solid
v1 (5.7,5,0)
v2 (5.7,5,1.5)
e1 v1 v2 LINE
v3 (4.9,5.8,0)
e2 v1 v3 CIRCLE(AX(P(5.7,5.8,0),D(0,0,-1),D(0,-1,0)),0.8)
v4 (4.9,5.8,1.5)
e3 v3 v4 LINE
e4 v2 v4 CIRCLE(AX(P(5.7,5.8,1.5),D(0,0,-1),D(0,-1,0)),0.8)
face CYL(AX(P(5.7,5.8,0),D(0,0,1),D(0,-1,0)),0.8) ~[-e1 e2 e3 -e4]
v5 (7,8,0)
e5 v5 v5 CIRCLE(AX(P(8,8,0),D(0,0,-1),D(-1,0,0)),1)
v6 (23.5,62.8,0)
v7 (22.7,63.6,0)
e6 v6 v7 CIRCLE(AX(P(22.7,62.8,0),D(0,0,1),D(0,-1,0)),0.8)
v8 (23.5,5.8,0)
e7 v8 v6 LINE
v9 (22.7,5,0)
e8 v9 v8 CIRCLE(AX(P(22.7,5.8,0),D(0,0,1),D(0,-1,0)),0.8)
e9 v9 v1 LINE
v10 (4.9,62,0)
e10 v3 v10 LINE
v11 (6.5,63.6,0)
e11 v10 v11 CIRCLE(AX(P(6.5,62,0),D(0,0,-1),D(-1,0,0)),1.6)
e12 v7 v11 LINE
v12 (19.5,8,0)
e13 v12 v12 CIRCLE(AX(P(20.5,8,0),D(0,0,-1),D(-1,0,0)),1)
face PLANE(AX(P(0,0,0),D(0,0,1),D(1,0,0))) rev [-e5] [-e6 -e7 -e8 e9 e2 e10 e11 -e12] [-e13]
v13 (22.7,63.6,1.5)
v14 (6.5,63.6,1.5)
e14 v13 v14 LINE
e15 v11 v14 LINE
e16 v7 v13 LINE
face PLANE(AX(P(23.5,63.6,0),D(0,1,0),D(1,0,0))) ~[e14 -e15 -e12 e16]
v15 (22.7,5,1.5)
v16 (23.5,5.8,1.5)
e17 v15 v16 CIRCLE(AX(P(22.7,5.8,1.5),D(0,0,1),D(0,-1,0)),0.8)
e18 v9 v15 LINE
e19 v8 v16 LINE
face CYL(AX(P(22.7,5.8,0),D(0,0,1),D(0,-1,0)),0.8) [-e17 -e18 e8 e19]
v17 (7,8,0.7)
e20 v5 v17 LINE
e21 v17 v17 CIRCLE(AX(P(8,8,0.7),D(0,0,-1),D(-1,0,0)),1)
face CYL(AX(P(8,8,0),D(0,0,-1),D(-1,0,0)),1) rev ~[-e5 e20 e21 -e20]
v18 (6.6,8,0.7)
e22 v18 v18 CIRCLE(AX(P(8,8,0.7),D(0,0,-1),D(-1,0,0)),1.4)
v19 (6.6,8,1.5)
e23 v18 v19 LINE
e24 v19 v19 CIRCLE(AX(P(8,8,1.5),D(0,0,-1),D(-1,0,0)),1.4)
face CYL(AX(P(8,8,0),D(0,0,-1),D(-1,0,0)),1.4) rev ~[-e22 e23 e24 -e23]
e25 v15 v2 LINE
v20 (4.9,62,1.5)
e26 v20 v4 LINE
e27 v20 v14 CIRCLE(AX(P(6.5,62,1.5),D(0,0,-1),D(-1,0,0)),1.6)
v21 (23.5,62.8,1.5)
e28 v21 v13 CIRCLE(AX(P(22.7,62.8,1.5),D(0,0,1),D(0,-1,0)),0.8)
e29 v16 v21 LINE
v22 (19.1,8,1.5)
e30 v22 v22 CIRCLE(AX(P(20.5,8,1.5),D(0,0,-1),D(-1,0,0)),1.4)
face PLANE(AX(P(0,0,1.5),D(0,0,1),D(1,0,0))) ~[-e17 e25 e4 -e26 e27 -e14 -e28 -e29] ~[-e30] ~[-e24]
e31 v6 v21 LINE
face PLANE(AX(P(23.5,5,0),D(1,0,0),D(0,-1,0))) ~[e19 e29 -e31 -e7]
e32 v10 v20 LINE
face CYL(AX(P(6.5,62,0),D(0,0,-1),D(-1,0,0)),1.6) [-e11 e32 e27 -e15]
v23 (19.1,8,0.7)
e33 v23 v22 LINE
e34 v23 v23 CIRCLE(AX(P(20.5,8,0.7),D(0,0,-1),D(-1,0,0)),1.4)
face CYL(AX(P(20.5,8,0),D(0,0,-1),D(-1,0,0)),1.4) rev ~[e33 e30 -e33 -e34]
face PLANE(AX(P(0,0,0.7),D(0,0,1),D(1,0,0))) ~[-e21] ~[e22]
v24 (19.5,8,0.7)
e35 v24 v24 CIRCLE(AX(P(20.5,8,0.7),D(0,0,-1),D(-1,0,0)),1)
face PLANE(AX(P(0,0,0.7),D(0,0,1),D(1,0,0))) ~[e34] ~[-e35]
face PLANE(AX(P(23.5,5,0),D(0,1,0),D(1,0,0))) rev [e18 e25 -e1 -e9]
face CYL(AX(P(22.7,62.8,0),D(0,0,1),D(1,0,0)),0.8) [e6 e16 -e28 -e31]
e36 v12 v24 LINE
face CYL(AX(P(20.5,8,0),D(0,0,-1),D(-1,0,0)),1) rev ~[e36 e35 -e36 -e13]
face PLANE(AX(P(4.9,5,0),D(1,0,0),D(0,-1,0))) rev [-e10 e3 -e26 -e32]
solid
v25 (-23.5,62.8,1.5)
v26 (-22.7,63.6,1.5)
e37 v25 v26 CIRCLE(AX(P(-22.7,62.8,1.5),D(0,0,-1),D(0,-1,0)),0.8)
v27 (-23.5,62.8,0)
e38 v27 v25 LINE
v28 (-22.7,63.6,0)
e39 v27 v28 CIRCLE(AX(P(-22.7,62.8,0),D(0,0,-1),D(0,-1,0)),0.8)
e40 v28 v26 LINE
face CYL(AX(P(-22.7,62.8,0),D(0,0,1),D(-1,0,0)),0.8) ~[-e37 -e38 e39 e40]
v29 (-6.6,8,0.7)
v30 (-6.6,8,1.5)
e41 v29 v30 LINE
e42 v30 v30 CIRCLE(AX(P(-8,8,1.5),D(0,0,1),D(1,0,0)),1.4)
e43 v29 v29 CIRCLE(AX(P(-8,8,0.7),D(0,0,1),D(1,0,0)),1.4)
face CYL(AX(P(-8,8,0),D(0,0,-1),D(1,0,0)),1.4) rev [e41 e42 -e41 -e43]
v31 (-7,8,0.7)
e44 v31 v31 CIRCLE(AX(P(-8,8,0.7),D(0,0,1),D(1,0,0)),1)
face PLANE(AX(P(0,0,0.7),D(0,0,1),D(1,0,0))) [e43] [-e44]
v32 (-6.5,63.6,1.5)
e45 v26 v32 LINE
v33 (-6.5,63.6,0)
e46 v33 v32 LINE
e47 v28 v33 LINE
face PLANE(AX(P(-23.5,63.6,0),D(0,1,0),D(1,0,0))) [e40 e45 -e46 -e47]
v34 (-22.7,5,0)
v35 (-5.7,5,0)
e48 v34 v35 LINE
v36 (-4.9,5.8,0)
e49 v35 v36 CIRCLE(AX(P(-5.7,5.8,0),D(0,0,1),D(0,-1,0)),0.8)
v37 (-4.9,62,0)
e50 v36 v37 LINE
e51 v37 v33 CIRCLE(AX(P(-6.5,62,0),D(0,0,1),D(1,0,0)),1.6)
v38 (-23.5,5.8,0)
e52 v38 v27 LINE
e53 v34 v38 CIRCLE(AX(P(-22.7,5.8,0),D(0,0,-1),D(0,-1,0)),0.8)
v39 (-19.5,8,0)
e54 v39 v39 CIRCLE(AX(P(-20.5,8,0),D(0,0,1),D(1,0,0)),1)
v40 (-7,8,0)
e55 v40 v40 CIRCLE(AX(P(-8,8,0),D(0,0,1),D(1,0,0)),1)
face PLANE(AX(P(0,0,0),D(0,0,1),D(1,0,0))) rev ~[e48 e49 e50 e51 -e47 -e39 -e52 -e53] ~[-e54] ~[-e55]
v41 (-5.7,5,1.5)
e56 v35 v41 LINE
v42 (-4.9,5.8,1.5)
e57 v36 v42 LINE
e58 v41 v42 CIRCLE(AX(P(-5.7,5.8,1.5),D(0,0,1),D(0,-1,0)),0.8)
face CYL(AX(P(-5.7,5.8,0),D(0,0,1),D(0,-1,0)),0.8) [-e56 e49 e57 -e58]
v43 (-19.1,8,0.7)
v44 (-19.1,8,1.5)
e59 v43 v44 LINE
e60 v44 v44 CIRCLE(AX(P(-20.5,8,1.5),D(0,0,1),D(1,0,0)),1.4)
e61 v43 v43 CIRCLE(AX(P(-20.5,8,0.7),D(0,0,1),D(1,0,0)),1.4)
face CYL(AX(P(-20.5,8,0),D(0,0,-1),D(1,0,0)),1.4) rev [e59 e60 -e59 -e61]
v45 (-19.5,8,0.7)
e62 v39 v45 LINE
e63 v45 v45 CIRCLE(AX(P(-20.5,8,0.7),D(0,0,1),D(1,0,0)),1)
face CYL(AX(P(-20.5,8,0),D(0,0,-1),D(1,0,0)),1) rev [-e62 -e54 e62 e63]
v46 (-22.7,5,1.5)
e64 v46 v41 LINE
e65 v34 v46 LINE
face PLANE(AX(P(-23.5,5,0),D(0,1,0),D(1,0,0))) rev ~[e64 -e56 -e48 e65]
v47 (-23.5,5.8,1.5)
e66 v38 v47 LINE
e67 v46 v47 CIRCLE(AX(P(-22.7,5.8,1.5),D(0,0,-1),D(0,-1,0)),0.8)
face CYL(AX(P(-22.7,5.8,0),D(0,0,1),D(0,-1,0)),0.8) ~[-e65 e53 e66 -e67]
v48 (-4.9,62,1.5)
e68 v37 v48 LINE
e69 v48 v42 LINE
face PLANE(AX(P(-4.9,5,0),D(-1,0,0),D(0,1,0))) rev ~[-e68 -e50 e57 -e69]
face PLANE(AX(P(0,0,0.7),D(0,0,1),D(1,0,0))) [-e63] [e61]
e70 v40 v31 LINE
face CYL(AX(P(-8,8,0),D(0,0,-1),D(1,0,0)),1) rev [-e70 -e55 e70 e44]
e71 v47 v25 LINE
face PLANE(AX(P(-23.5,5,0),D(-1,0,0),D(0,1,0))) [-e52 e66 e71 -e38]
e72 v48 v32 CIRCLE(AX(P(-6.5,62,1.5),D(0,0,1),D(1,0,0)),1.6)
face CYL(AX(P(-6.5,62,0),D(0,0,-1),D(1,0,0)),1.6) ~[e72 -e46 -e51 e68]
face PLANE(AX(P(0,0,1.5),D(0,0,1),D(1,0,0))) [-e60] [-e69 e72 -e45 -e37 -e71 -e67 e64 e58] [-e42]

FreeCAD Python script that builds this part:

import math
import FreeCAD as App
import Part
import Sketcher

V = App.Vector


def edges_at(feature, points):
    """Names of the edges that pass closest to the given points."""
    edges = feature.Shape.Edges
    near = lambda p: min(range(len(edges)), key=lambda i: edges[i].distToShape(Part.Vertex(*p))[0])
    return sorted({f"Edge{near(p) + 1}" for p in points})

doc = App.newDocument("Part")
body = doc.addObject("PartDesign::Body", "Body")
body.AllowCompound = True

sketch1 = body.newObject("Sketcher::SketchObject", "Sketch")
sketch1.AttachmentSupport = (doc.getObject("XY_Plane"), [""])
sketch1.MapMode = "FlatFace"
sketch1.addGeometry([
    Part.LineSegment(V(-23.5, 5, 0), V(-4.9, 5, 0)),
    Part.LineSegment(V(-4.9, 5, 0), V(-4.9, 62, 0)),
    Part.ArcOfCircle(Part.Circle(V(-6.5, 62, 0), V(0, 0, 1), 1.6), math.radians(0), math.radians(90)),
    Part.LineSegment(V(-6.5, 63.6, 0), V(-23.5, 63.6, 0)),
    Part.LineSegment(V(-23.5, 63.6, 0), V(-23.5, 5, 0)),
    Part.Circle(V(-20.5, 8, 0), V(0, 0, 1), 1.4),
    Part.Circle(V(-8, 8, 0), V(0, 0, 1), 1.4),
], False)
sketch1.addConstraint([
    Sketcher.Constraint("Coincident", 0, 2, 1, 1),
    Sketcher.Constraint("Tangent", 1, 2, 2, 1),
    Sketcher.Constraint("Tangent", 2, 2, 3, 1),
    Sketcher.Constraint("Coincident", 3, 2, 4, 1),
    Sketcher.Constraint("Coincident", 4, 2, 0, 1),
    Sketcher.Constraint("Horizontal", 0),
    Sketcher.Constraint("Vertical", 1),
    Sketcher.Constraint("Horizontal", 3),
    Sketcher.Constraint("Vertical", 4),
    Sketcher.Constraint("Equal", 5, 6),
    Sketcher.Constraint("Horizontal", 5, 3, 6, 3),
    Sketcher.Constraint("Diameter", 5, 2.8),
    Sketcher.Constraint("Radius", 2, 1.6),
    Sketcher.Constraint("DistanceX", 3, 2, 3, 1, 17.0),
    Sketcher.Constraint("DistanceY", 1, 1, 1, 2, 57.0),
    Sketcher.Constraint("DistanceY", -1, 1, 2, 3, 62.0),
    Sketcher.Constraint("DistanceY", -1, 1, 5, 3, 8.0),
    Sketcher.Constraint("DistanceX", 6, 3, -1, 1, 8.0),
    Sketcher.Constraint("DistanceX", 5, 3, 2, 3, 14.0),
    Sketcher.Constraint("DistanceX", 2, 3, -1, 1, 6.5),
])
pad1 = body.newObject("PartDesign::Pad", "Pad")
pad1.Profile = sketch1
pad1.Length = 1.5

sketch2 = body.newObject("Sketcher::SketchObject", "Sketch001")
sketch2.AttachmentSupport = (doc.getObject("XY_Plane"), [""])
sketch2.MapMode = "FlatFace"
sketch2.addGeometry([
    Part.Circle(V(-8, 8, 0), V(0, 0, 1), 1.4),
    Part.Circle(V(-8, 8, 0), V(0, 0, 1), 1),
    Part.Circle(V(-20.5, 8, 0), V(0, 0, 1), 1.4),
    Part.Circle(V(-20.5, 8, 0), V(0, 0, 1), 1),
], False)
sketch2.addConstraint([
    Sketcher.Constraint("Coincident", 1, 3, 0, 3),
    Sketcher.Constraint("Coincident", 3, 3, 2, 3),
    Sketcher.Constraint("Equal", 0, 2),
    Sketcher.Constraint("Equal", 1, 3),
    Sketcher.Constraint("Horizontal", 1, 3, 2, 3),
    Sketcher.Constraint("Diameter", 1, 2.0),
    Sketcher.Constraint("Diameter", 0, 2.8),
    Sketcher.Constraint("DistanceX", 0, 3, -1, 1, 8.0),
    Sketcher.Constraint("DistanceY", -1, 1, 0, 3, 8.0),
    Sketcher.Constraint("DistanceX", 2, 3, -1, 1, 20.5),
])
pad2 = body.newObject("PartDesign::Pad", "Pad001")
pad2.Profile = sketch2
pad2.Length = 0.7
doc.recompute()

fillet = body.newObject("PartDesign::Fillet", "Fillet")
fillet.Base = (pad2, edges_at(pad2, [(-23.5, 5, 0.75), (-23.5, 63.6, 0.75), (-4.9, 5, 0.75)]))
fillet.Radius = 0.8
doc.recompute()

mirrored = body.newObject("PartDesign::Mirrored", "Mirrored")
mirrored.TransformMode = "Transform body"
mirrored.MirrorPlane = (doc.getObject("YZ_Plane"), [""])
body.Tip = mirrored

doc.recompute()
